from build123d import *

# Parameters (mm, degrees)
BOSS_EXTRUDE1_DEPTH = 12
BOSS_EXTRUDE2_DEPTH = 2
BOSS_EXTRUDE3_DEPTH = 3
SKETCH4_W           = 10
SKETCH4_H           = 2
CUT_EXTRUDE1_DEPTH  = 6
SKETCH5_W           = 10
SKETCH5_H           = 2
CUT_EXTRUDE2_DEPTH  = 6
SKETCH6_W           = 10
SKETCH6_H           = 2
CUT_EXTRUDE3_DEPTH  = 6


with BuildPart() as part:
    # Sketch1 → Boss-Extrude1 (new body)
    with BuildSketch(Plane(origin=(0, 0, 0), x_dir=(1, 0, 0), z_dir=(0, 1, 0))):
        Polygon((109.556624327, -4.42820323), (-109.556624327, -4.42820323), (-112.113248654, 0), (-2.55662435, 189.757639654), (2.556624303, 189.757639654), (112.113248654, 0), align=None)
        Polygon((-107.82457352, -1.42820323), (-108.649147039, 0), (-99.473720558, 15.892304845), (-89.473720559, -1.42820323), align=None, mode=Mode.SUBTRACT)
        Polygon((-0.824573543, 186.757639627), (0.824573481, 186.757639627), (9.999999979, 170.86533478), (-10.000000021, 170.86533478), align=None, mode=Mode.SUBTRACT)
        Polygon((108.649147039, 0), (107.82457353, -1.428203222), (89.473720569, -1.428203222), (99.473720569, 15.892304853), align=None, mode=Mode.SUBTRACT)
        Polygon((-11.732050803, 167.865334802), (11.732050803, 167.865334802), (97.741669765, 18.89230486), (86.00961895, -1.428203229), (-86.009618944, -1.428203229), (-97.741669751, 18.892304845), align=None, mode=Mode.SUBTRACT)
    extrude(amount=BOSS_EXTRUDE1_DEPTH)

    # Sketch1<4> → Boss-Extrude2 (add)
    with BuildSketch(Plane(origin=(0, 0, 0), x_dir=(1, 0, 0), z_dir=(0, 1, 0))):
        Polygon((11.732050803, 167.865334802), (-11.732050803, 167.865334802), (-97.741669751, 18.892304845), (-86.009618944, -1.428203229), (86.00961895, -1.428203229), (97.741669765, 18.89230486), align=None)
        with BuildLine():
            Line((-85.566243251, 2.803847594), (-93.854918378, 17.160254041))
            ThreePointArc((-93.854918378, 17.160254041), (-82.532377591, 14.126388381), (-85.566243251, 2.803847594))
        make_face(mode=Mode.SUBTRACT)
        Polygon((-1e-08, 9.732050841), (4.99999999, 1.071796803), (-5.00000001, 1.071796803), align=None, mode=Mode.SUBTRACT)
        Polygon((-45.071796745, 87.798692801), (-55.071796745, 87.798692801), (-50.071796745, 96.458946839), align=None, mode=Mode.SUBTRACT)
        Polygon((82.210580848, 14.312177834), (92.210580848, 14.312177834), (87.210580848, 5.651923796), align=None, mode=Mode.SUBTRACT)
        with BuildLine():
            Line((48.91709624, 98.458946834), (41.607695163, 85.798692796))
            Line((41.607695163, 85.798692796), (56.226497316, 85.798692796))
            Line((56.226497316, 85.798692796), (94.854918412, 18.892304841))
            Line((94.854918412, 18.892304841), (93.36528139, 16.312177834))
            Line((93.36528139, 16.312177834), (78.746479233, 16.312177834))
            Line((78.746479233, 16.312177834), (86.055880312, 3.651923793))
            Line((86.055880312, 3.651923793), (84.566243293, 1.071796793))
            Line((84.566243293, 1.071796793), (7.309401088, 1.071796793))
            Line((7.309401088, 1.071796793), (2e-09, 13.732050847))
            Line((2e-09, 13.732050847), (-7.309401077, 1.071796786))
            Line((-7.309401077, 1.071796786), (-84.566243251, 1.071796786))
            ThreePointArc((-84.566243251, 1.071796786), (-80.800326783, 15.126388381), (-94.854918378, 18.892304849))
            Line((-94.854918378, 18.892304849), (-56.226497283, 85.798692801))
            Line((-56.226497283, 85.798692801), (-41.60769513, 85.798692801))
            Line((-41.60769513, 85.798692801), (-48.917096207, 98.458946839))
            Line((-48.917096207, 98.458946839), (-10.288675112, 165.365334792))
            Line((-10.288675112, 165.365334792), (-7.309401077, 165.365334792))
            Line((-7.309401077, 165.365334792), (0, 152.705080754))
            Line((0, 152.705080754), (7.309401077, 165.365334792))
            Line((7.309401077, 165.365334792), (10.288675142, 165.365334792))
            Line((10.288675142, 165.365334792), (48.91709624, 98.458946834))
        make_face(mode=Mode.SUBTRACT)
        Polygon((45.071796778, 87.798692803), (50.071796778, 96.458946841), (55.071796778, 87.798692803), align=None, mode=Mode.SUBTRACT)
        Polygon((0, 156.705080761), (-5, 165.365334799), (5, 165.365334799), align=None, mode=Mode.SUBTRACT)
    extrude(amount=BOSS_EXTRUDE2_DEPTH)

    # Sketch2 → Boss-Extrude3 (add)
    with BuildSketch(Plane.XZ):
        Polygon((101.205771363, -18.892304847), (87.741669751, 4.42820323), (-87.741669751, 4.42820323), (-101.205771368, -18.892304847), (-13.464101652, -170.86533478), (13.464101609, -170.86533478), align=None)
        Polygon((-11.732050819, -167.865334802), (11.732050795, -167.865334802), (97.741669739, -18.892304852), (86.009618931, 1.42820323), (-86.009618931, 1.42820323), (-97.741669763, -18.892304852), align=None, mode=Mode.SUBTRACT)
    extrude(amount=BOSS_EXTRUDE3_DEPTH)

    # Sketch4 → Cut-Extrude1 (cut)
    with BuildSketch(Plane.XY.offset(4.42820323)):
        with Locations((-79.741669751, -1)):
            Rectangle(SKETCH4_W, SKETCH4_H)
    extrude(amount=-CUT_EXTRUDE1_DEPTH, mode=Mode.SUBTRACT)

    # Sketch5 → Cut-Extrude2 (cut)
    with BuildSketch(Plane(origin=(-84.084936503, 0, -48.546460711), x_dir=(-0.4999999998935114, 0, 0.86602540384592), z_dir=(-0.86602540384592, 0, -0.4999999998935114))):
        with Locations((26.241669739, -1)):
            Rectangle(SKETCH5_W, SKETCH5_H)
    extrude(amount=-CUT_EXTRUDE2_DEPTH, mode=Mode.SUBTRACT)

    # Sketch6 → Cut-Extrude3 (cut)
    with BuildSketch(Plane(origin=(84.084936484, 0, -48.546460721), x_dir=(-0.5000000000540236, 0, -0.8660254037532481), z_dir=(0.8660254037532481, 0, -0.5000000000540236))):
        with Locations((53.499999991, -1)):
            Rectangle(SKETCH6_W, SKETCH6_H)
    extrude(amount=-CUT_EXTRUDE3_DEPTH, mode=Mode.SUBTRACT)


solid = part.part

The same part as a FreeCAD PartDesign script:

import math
import FreeCAD as App
import Part
import Sketcher

V = App.Vector
Q = App.Units.Quantity

doc = App.newDocument("Part")
body = doc.addObject("PartDesign::Body", "Body")

# Sketch on XZ plane
sketch1 = doc.addObject("Sketcher::SketchObject", "Sketch")
body.addObject(sketch1)
sketch1.AttachmentSupport = (doc.XZ_Plane, [""])
sketch1.MapMode = "FlatFace"
sketch1.addGeometry([
    Part.LineSegment(V(-109.6, 4.4, 0), V(109.6, 4.4, 0)),  # 0
    Part.LineSegment(V(109.6, 4.4, 0), V(112.1, 0, 0)),  # 1
    Part.LineSegment(V(112.1, 0, 0), V(2.6, -189.8, 0)),  # 2
    Part.LineSegment(V(2.6, -189.8, 0), V(-2.6, -189.8, 0)),  # 3
    Part.LineSegment(V(-2.6, -189.8, 0), V(-112.1, 0, 0)),  # 4
    Part.LineSegment(V(-112.1, 0, 0), V(-109.6, 4.4, 0)),  # 5
    Part.LineSegment(V(108.6, 0, 0), V(107.8, 1.4, 0)),  # 6
    Part.LineSegment(V(107.8, 1.4, 0), V(89.5, 1.4, 0)),  # 7
    Part.LineSegment(V(89.5, 1.4, 0), V(99.5, -15.9, 0)),  # 8
    Part.LineSegment(V(99.5, -15.9, 0), V(108.6, 0, 0)),  # 9
    Part.LineSegment(V(-11.7, -167.9, 0), V(11.7, -167.9, 0)),  # 10
    Part.LineSegment(V(11.7, -167.9, 0), V(97.7, -18.9, 0)),  # 11
    Part.LineSegment(V(97.7, -18.9, 0), V(86, 1.4, 0)),  # 12
    Part.LineSegment(V(86, 1.4, 0), V(-86, 1.4, 0)),  # 13
    Part.LineSegment(V(-86, 1.4, 0), V(-97.7, -18.9, 0)),  # 14
    Part.LineSegment(V(-97.7, -18.9, 0), V(-11.7, -167.9, 0)),  # 15
    Part.LineSegment(V(-107.8, 1.4, 0), V(-108.6, 0, 0)),  # 16
    Part.LineSegment(V(-108.6, 0, 0), V(-99.5, -15.9, 0)),  # 17
    Part.LineSegment(V(-99.5, -15.9, 0), V(-89.5, 1.4, 0)),  # 18
    Part.LineSegment(V(-89.5, 1.4, 0), V(-107.8, 1.4, 0)),  # 19
    Part.LineSegment(V(-0.8, -186.8, 0), V(0.8, -186.8, 0)),  # 20
    Part.LineSegment(V(0.8, -186.8, 0), V(10, -170.9, 0)),  # 21
    Part.LineSegment(V(10, -170.9, 0), V(-10, -170.9, 0)),  # 22
    Part.LineSegment(V(-10, -170.9, 0), V(-0.8, -186.8, 0)),  # 23
], False)
sketch1.addConstraint([
    Sketcher.Constraint("Coincident", 0, 2, 1, 1),
    Sketcher.Constraint("Coincident", 1, 2, 2, 1),
    Sketcher.Constraint("Coincident", 2, 2, 3, 1),
    Sketcher.Constraint("Coincident", 3, 2, 4, 1),
    Sketcher.Constraint("Coincident", 4, 2, 5, 1),
    Sketcher.Constraint("Coincident", 5, 2, 0, 1),
    Sketcher.Constraint("Coincident", 6, 2, 7, 1),
    Sketcher.Constraint("Coincident", 7, 2, 8, 1),
    Sketcher.Constraint("Coincident", 8, 2, 9, 1),
    Sketcher.Constraint("Coincident", 9, 2, 6, 1),
    Sketcher.Constraint("Coincident", 10, 2, 11, 1),
    Sketcher.Constraint("Coincident", 11, 2, 12, 1),
    Sketcher.Constraint("Coincident", 12, 2, 13, 1),
    Sketcher.Constraint("Coincident", 13, 2, 14, 1),
    Sketcher.Constraint("Coincident", 14, 2, 15, 1),
    Sketcher.Constraint("Coincident", 15, 2, 10, 1),
    Sketcher.Constraint("Coincident", 16, 2, 17, 1),
    Sketcher.Constraint("Coincident", 17, 2, 18, 1),
    Sketcher.Constraint("Coincident", 18, 2, 19, 1),
    Sketcher.Constraint("Coincident", 19, 2, 16, 1),
    Sketcher.Constraint("Coincident", 20, 2, 21, 1),
    Sketcher.Constraint("Coincident", 21, 2, 22, 1),
    Sketcher.Constraint("Coincident", 22, 2, 23, 1),
    Sketcher.Constraint("Coincident", 23, 2, 20, 1),
    Sketcher.Constraint("Horizontal", 0),
    Sketcher.Constraint("Horizontal", 3),
    Sketcher.Constraint("Horizontal", 7),
    Sketcher.Constraint("Horizontal", 10),
    Sketcher.Constraint("Horizontal", 13),
    Sketcher.Constraint("Horizontal", 19),
    Sketcher.Constraint("Horizontal", 20),
    Sketcher.Constraint("Horizontal", 22),
    Sketcher.Constraint("Symmetric", 1, 2, 4, 2, -1, 1),
    Sketcher.Constraint("Symmetric", 9, 2, 16, 2, -1, 1),
    Sketcher.Constraint("Symmetric", 11, 2, 14, 2, -2),
    Sketcher.Constraint("Symmetric", 8, 2, 17, 2, -2),
    Sketcher.Constraint("Symmetric", 7, 2, 18, 2, -2),
    Sketcher.Constraint("PointOnObject", 1, 2, -1),
    Sketcher.Constraint("PointOnObject", 9, 2, -1),
    Sketcher.Constraint("Parallel", 1, 4),
    Sketcher.Constraint("Parallel", 2, 5),
    Sketcher.Constraint("Parallel", 4, 6),
    Sketcher.Constraint("Parallel", 6, 8),
    Sketcher.Constraint("Parallel", 5, 9),
    Sketcher.Constraint("Parallel", 9, 11),
    Sketcher.Constraint("Parallel", 8, 12),
    Sketcher.Constraint("Parallel", 11, 14),
    Sketcher.Constraint("Parallel", 12, 15),
    Sketcher.Constraint("Parallel", 14, 16),
    Sketcher.Constraint("Parallel", 15, 17),
    Sketcher.Constraint("Parallel", 18, 21),
    Sketcher.Constraint("Parallel", 17, 23),
    Sketcher.Constraint("Horizontal", 7, 2, 12, 2),
    Sketcher.Constraint("Equal", 17, 21),
    Sketcher.Constraint("DistanceX", 22, 2, 22, 1, Q("20 mm")),
    Sketcher.Constraint("Angle", 1, Q("-60 deg")),
    Sketcher.Constraint("Distance", 8, Q("20 mm")),
    Sketcher.Constraint("DistanceX", -1, 1, 21, 2, Q("10 mm")),
    Sketcher.Constraint("DistanceX", 2, 2, 0, 2, Q("107 mm")),
    Sketcher.Constraint("DistanceY", 6, 2, 0, 2, Q("3 mm")),
    Sketcher.Constraint("DistanceY", 11, 2, 8, 2, Q("3 mm")),
    Sketcher.Constraint("DistanceY", 2, 2, 20, 2, Q("3 mm")),
    Sketcher.Constraint("DistanceY", 21, 2, 10, 2, Q("3 mm")),
    Sketcher.Constraint("DistanceX", 10, 1, 10, 2, Q("23.464102 mm")),
    Sketcher.Constraint("DistanceX", 0, 1, 0, 2, Q("219.113249 mm")),
    Sketcher.Constraint("DistanceX", 9, 2, 1, 2, Q("3.464102 mm")),
    Sketcher.Constraint("DistanceX", 12, 2, 7, 2, Q("3.464102 mm")),
])
pad1 = doc.addObject("PartDesign::Pad", "Pad")
body.addObject(pad1)
pad1.Profile = sketch1
pad1.Length = 12
pad1.Reversed = True

# Sketch on XZ plane
sketch2 = doc.addObject("Sketcher::SketchObject", "Sketch001")
body.addObject(sketch2)
sketch2.AttachmentSupport = (doc.XZ_Plane, [""])
sketch2.MapMode = "FlatFace"
sketch2.addGeometry([
    Part.LineSegment(V(11.7, -167.9, 0), V(-11.7, -167.9, 0)),  # 0
    Part.LineSegment(V(-11.7, -167.9, 0), V(-97.7, -18.9, 0)),  # 1
    Part.LineSegment(V(-97.7, -18.9, 0), V(-86, 1.4, 0)),  # 2
    Part.LineSegment(V(-86, 1.4, 0), V(86, 1.4, 0)),  # 3
    Part.LineSegment(V(86, 1.4, 0), V(97.7, -18.9, 0)),  # 4
    Part.LineSegment(V(97.7, -18.9, 0), V(11.7, -167.9, 0)),  # 5
    Part.ArcOfCircle(Part.Circle(V(-89.7, -10, 0), V(0, 0, 1), 8.3), math.radians(-120), math.radians(60)),  # 6
    Part.LineSegment(V(-85.6, -2.8, 0), V(-93.9, -17.2, 0)),  # 7
    Part.LineSegment(V(-5, -1.1, 0), V(0, -9.7, 0)),  # 8
    Part.LineSegment(V(0, -9.7, 0), V(5, -1.1, 0)),  # 9
    Part.LineSegment(V(5, -1.1, 0), V(-5, -1.1, 0)),  # 10
    Part.LineSegment(V(87.2, -5.7, 0), V(82.2, -14.3, 0)),  # 11
    Part.LineSegment(V(82.2, -14.3, 0), V(92.2, -14.3, 0)),  # 12
    Part.LineSegment(V(92.2, -14.3, 0), V(87.2, -5.7, 0)),  # 13
    Part.LineSegment(V(10.3, -165.4, 0), V(48.9, -98.5, 0)),  # 14
    Part.LineSegment(V(48.9, -98.5, 0), V(41.6, -85.8, 0)),  # 15
    Part.LineSegment(V(41.6, -85.8, 0), V(56.2, -85.8, 0)),  # 16
    Part.LineSegment(V(56.2, -85.8, 0), V(94.9, -18.9, 0)),  # 17
    Part.LineSegment(V(94.9, -18.9, 0), V(93.4, -16.3, 0)),  # 18
    Part.LineSegment(V(93.4, -16.3, 0), V(78.7, -16.3, 0)),  # 19
    Part.LineSegment(V(78.7, -16.3, 0), V(86.1, -3.7, 0)),  # 20
    Part.LineSegment(V(86.1, -3.7, 0), V(84.6, -1.1, 0)),  # 21
    Part.LineSegment(V(84.6, -1.1, 0), V(7.3, -1.1, 0)),  # 22
    Part.LineSegment(V(7.3, -1.1, 0), V(0, -13.7, 0)),  # 23
    Part.LineSegment(V(0, -13.7, 0), V(-7.3, -1.1, 0)),  # 24
    Part.LineSegment(V(-7.3, -1.1, 0), V(-84.6, -1.1, 0)),  # 25
    Part.ArcOfCircle(Part.Circle(V(-89.7, -10, 0), V(0, 0, 1), 10.3), math.radians(-120), math.radians(60)),  # 26
    Part.LineSegment(V(-94.9, -18.9, 0), V(-56.2, -85.8, 0)),  # 27
    Part.LineSegment(V(-56.2, -85.8, 0), V(-41.6, -85.8, 0)),  # 28
    Part.LineSegment(V(-41.6, -85.8, 0), V(-48.9, -98.5, 0)),  # 29
    Part.LineSegment(V(-48.9, -98.5, 0), V(-10.3, -165.4, 0)),  # 30
    Part.LineSegment(V(-10.3, -165.4, 0), V(-7.3, -165.4, 0)),  # 31
    Part.LineSegment(V(-7.3, -165.4, 0), V(0, -152.7, 0)),  # 32
    Part.LineSegment(V(0, -152.7, 0), V(7.3, -165.4, 0)),  # 33
    Part.LineSegment(V(7.3, -165.4, 0), V(10.3, -165.4, 0)),  # 34
    Part.LineSegment(V(-50.1, -96.5, 0), V(-45.1, -87.8, 0)),  # 35
    Part.LineSegment(V(-45.1, -87.8, 0), V(-55.1, -87.8, 0)),  # 36
    Part.LineSegment(V(-55.1, -87.8, 0), V(-50.1, -96.5, 0)),  # 37
    Part.LineSegment(V(5, -165.4, 0), V(0, -156.7, 0)),  # 38
    Part.LineSegment(V(0, -156.7, 0), V(-5, -165.4, 0)),  # 39
    Part.LineSegment(V(-5, -165.4, 0), V(5, -165.4, 0)),  # 40
    Part.LineSegment(V(55.1, -87.8, 0), V(45.1, -87.8, 0)),  # 41
    Part.LineSegment(V(45.1, -87.8, 0), V(50.1, -96.5, 0)),  # 42
    Part.LineSegment(V(50.1, -96.5, 0), V(55.1, -87.8, 0)),  # 43
], False)
sketch2.addConstraint([
    Sketcher.Constraint("Coincident", 0, 2, 1, 1),
    Sketcher.Constraint("Coincident", 1, 2, 2, 1),
    Sketcher.Constraint("Coincident", 2, 2, 3, 1),
    Sketcher.Constraint("Coincident", 3, 2, 4, 1),
    Sketcher.Constraint("Coincident", 4, 2, 5, 1),
    Sketcher.Constraint("Coincident", 5, 2, 0, 1),
    Sketcher.Constraint("Coincident", 6, 1, 7, 2),
    Sketcher.Constraint("Coincident", 7, 1, 6, 2),
    Sketcher.Constraint("Coincident", 8, 2, 9, 1),
    Sketcher.Constraint("Coincident", 9, 2, 10, 1),
    Sketcher.Constraint("Coincident", 10, 2, 8, 1),
    Sketcher.Constraint("Coincident", 11, 2, 12, 1),
    Sketcher.Constraint("Coincident", 12, 2, 13, 1),
    Sketcher.Constraint("Coincident", 13, 2, 11, 1),
    Sketcher.Constraint("Coincident", 14, 2, 15, 1),
    Sketcher.Constraint("Coincident", 15, 2, 16, 1),
    Sketcher.Constraint("Coincident", 16, 2, 17, 1),
    Sketcher.Constraint("Coincident", 17, 2, 18, 1),
    Sketcher.Constraint("Coincident", 18, 2, 19, 1),
    Sketcher.Constraint("Coincident", 19, 2, 20, 1),
    Sketcher.Constraint("Coincident", 20, 2, 21, 1),
    Sketcher.Constraint("Coincident", 21, 2, 22, 1),
    Sketcher.Constraint("Coincident", 22, 2, 23, 1),
    Sketcher.Constraint("Coincident", 23, 2, 24, 1),
    Sketcher.Constraint("Coincident", 24, 2, 25, 1),
    Sketcher.Constraint("Coincident", 25, 2, 26, 2),
    Sketcher.Constraint("Coincident", 26, 1, 27, 1),
    Sketcher.Constraint("Coincident", 27, 2, 28, 1),
    Sketcher.Constraint("Coincident", 28, 2, 29, 1),
    Sketcher.Constraint("Coincident", 29, 2, 30, 1),
    Sketcher.Constraint("Coincident", 30, 2, 31, 1),
    Sketcher.Constraint("Coincident", 31, 2, 32, 1),
    Sketcher.Constraint("Coincident", 32, 2, 33, 1),
    Sketcher.Constraint("Coincident", 33, 2, 34, 1),
    Sketcher.Constraint("Coincident", 34, 2, 14, 1),
    Sketcher.Constraint("Coincident", 35, 2, 36, 1),
    Sketcher.Constraint("Coincident", 36, 2, 37, 1),
    Sketcher.Constraint("Coincident", 37, 2, 35, 1),
    Sketcher.Constraint("Coincident", 38, 2, 39, 1),
    Sketcher.Constraint("Coincident", 39, 2, 40, 1),
    Sketcher.Constraint("Coincident", 40, 2, 38, 1),
    Sketcher.Constraint("Coincident", 41, 2, 42, 1),
    Sketcher.Constraint("Coincident", 42, 2, 43, 1),
    Sketcher.Constraint("Coincident", 43, 2, 41, 1),
    Sketcher.Constraint("Horizontal", 0),
    Sketcher.Constraint("Horizontal", 3),
    Sketcher.Constraint("Horizontal", 10),
    Sketcher.Constraint("Horizontal", 12),
    Sketcher.Constraint("Horizontal", 16),
    Sketcher.Constraint("Horizontal", 19),
    Sketcher.Constraint("Horizontal", 22),
    Sketcher.Constraint("Horizontal", 25),
    Sketcher.Constraint("Horizontal", 28),
    Sketcher.Constraint("Horizontal", 31),
    Sketcher.Constraint("Horizontal", 34),
    Sketcher.Constraint("Horizontal", 36),
    Sketcher.Constraint("Horizontal", 40),
    Sketcher.Constraint("Horizontal", 41),
    Sketcher.Constraint("Coincident", 26, 3, 6, 3),
    Sketcher.Constraint("Symmetric", 1, 2, 4, 2, -2),
    Sketcher.Constraint("Symmetric", 22, 2, 24, 2, -2),
    Sketcher.Constraint("Symmetric", 17, 2, 26, 1, -2),
    Sketcher.Constraint("Symmetric", 16, 2, 27, 2, -2),
    Sketcher.Constraint("Symmetric", 14, 2, 29, 2, -2),
    Sketcher.Constraint("Symmetric", 31, 2, 33, 2, -2),
    Sketcher.Constraint("Symmetric", 35, 2, 41, 2, -2),
    Sketcher.Constraint("Symmetric", 37, 2, 42, 2, -2),
    Sketcher.Constraint("PointOnObject", 8, 2, -2),
    Sketcher.Constraint("PointOnObject", 23, 2, -2),
    Sketcher.Constraint("PointOnObject", 32, 2, -2),
    Sketcher.Constraint("PointOnObject", 38, 2, -2),
    Sketcher.Constraint("Parallel", 1, 4),
    Sketcher.Constraint("Parallel", 2, 5),
    Sketcher.Constraint("Parallel", 5, 7),
    Sketcher.Constraint("Parallel", 4, 8),
    Sketcher.Constraint("Parallel", 7, 9),
    Sketcher.Constraint("Parallel", 9, 11),
    Sketcher.Constraint("Parallel", 8, 13),
    Sketcher.Constraint("Parallel", 11, 14),
    Sketcher.Constraint("Parallel", 13, 15),
    Sketcher.Constraint("Parallel", 14, 17),
    Sketcher.Constraint("Parallel", 15, 18),
    Sketcher.Constraint("Parallel", 17, 20),
    Sketcher.Constraint("Parallel", 18, 21),
    Sketcher.Constraint("Parallel", 20, 23),
    Sketcher.Constraint("Parallel", 21, 24),
    Sketcher.Constraint("Parallel", 23, 29),
    Sketcher.Constraint("Parallel", 27, 30),
    Sketcher.Constraint("Parallel", 29, 32),
    Sketcher.Constraint("Parallel", 32, 35),
    Sketcher.Constraint("Parallel", 33, 37),
    Sketcher.Constraint("Parallel", 37, 38),
    Sketcher.Constraint("Parallel", 35, 39),
    Sketcher.Constraint("Parallel", 39, 43),
    Sketcher.Constraint("Horizontal", 4, 2, 17, 2),
    Sketcher.Constraint("Horizontal", 10, 2, 21, 2),
    Sketcher.Constraint("Horizontal", 34, 2, 39, 2),
    Sketcher.Constraint("Vertical", 24, 2, 31, 2),
    Sketcher.Constraint("Vertical", 10, 2, 39, 2),
    Sketcher.Constraint("Equal", 10, 12),
    Sketcher.Constraint("Equal", 16, 19),
    Sketcher.Constraint("Equal", 22, 25),
    Sketcher.Constraint("Equal", 12, 36),
    Sketcher.Constraint("Equal", 14, 17),
    Sketcher.Constraint("Equal", 15, 20),
    Sketcher.Constraint("Equal", 18, 21),
    Sketcher.Constraint("Equal", 20, 23),
    Sketcher.Constraint("DistanceX", 10, 2, 10, 1, Q("10 mm")),
    Sketcher.Constraint("Angle", 1, Q("120 deg")),
    Sketcher.Constraint("DistanceY", 18, 2, 12, 2, Q("2 mm")),
    Sketcher.Constraint("DistanceY", 13, 2, 20, 2, Q("2 mm")),
    Sketcher.Constraint("DistanceX", 7, 1, 25, 2, Q("1 mm")),
    Sketcher.Constraint("DistanceX", 26, 1, 6, 1, Q("1 mm")),
    Sketcher.Constraint("DistanceY", 35, 2, 28, 2, Q("2 mm")),
    Sketcher.Constraint("DistanceY", 9, 2, 3, 2, Q("2.5 mm")),
    Sketcher.Constraint("DistanceY", 0, 2, 30, 2, Q("2.5 mm")),
    Sketcher.Constraint("DistanceY", 6, 3, 8, 2, Q("0.25 mm")),
    Sketcher.Constraint("DistanceX", 0, 2, 0, 1, Q("23.464102 mm")),
    Sketcher.Constraint("Radius", 6, Q("8.288675 mm")),
    Sketcher.Constraint("Radius", 26, Q("10.288675 mm")),
    Sketcher.Constraint("DistanceX", 6, 3, 3, 2, Q("175.7202 mm")),
    Sketcher.Constraint("DistanceX", 6, 1, 2, 2, Q("7.845299 mm")),
    Sketcher.Constraint("DistanceX", 12, 2, 18, 2, Q("1.154701 mm")),
    Sketcher.Constraint("DistanceX", 35, 2, 28, 2, Q("3.464102 mm")),
    Sketcher.Constraint("DistanceY", 6, 3, -1, 1, Q("9.982051 mm")),
])
pad2 = doc.addObject("PartDesign::Pad", "Pad001")
body.addObject(pad2)
pad2.Profile = sketch2
pad2.Length = 2
pad2.Reversed = True

# Sketch on XZ plane
sketch3 = doc.addObject("Sketcher::SketchObject", "Sketch002")
body.addObject(sketch3)
sketch3.AttachmentSupport = (doc.XZ_Plane, [""])
sketch3.MapMode = "FlatFace"
sketch3.addGeometry([
    Part.LineSegment(V(101, -19, 0), V(88, 4, 0)),  # 0
    Part.LineSegment(V(88, 4, 0), V(-88, 4, 0)),  # 1
    Part.LineSegment(V(-88, 4, 0), V(-101, -19, 0)),  # 2
    Part.LineSegment(V(-101, -19, 0), V(-13, -171, 0)),  # 3
    Part.LineSegment(V(-13, -171, 0), V(13, -171, 0)),  # 4
    Part.LineSegment(V(13, -171, 0), V(101, -19, 0)),  # 5
    Part.LineSegment(V(12, -168, 0), V(-12, -168, 0)),  # 6
    Part.LineSegment(V(-12, -168, 0), V(-98, -19, 0)),  # 7
    Part.LineSegment(V(-98, -19, 0), V(-86, 1, 0)),  # 8
    Part.LineSegment(V(-86, 1, 0), V(86, 1, 0)),  # 9
    Part.LineSegment(V(86, 1, 0), V(98, -19, 0)),  # 10
    Part.LineSegment(V(98, -19, 0), V(12, -168, 0)),  # 11
], False)
sketch3.addConstraint([
    Sketcher.Constraint("Coincident", 0, 2, 1, 1),
    Sketcher.Constraint("Coincident", 1, 2, 2, 1),
    Sketcher.Constraint("Coincident", 2, 2, 3, 1),
    Sketcher.Constraint("Coincident", 3, 2, 4, 1),
    Sketcher.Constraint("Coincident", 4, 2, 5, 1),
    Sketcher.Constraint("Coincident", 5, 2, 0, 1),
    Sketcher.Constraint("Coincident", 6, 2, 7, 1),
    Sketcher.Constraint("Coincident", 7, 2, 8, 1),
    Sketcher.Constraint("Coincident", 8, 2, 9, 1),
    Sketcher.Constraint("Coincident", 9, 2, 10, 1),
    Sketcher.Constraint("Coincident", 10, 2, 11, 1),
    Sketcher.Constraint("Coincident", 11, 2, 6, 1),
    Sketcher.Constraint("Horizontal", 1),
    Sketcher.Constraint("Horizontal", 4),
    Sketcher.Constraint("Horizontal", 6),
    Sketcher.Constraint("Horizontal", 9),
    Sketcher.Constraint("Symmetric", 2, 2, 5, 2, -2),
    Sketcher.Constraint("Symmetric", 7, 2, 10, 2, -2),
    Sketcher.Constraint("Parallel", 0, 3),
    Sketcher.Constraint("Parallel", 2, 5),
    Sketcher.Constraint("Parallel", 3, 7),
    Sketcher.Constraint("Parallel", 5, 8),
    Sketcher.Constraint("Parallel", 7, 10),
    Sketcher.Constraint("Parallel", 8, 11),
    Sketcher.Constraint("Horizontal", 5, 2, 7, 2),
    Sketcher.Constraint("Equal", 0, 2),
    Sketcher.Constraint("Angle", 0, Q("120 deg")),
    Sketcher.Constraint("DistanceY", 3, 2, 6, 2, Q("3 mm")),
    Sketcher.Constraint("DistanceX", 7, 2, 1, 2, Q("10 mm")),
    Sketcher.Constraint("DistanceY", 8, 2, 1, 2, Q("3 mm")),
    Sketcher.Constraint("DistanceX", 6, 2, 6, 1, Q("23.464102 mm")),
    Sketcher.Constraint("Distance", 8, Q("23.464102 mm")),
    Sketcher.Constraint("DistanceX", 1, 2, 1, 1, Q("175.48334 mm")),
    Sketcher.Constraint("DistanceY", -1, 1, 0, 2, Q("4.428203 mm")),
])
pad3 = doc.addObject("PartDesign::Pad", "Pad002")
body.addObject(pad3)
pad3.Profile = sketch3
pad3.Length = 3

# Sketch on XY plane
sketch4 = doc.addObject("Sketcher::SketchObject", "Sketch003")
body.addObject(sketch4)
sketch4.AttachmentSupport = (doc.XY_Plane, [""])
sketch4.MapMode = "FlatFace"
sketch4.AttachmentOffset = App.Placement(V(0, 0, 4.428203), App.Rotation())
sketch4.addGeometry([
    Part.LineSegment(V(-84.7, 0, 0), V(-84.7, -2, 0)),
    Part.LineSegment(V(-84.7, -2, 0), V(-74.7, -2, 0)),
    Part.LineSegment(V(-74.7, -2, 0), V(-74.7, 0, 0)),
    Part.LineSegment(V(-74.7, 0, 0), V(-84.7, 0, 0)),
], False)
sketch4.addConstraint([
    Sketcher.Constraint("Coincident", 0, 2, 1, 1),
    Sketcher.Constraint("Coincident", 1, 2, 2, 1),
    Sketcher.Constraint("Coincident", 2, 2, 3, 1),
    Sketcher.Constraint("Coincident", 3, 2, 0, 1),
    Sketcher.Constraint("Vertical", 0),
    Sketcher.Constraint("Horizontal", 1),
    Sketcher.Constraint("Vertical", 2),
    Sketcher.Constraint("Horizontal", 3),
    Sketcher.Constraint("PointOnObject", 2, 2, -1),
    Sketcher.Constraint("DistanceX", 1, 1, 1, 2, Q("10 mm")),
    Sketcher.Constraint("DistanceY", 0, 2, 0, 1, Q("2 mm")),
    Sketcher.Constraint("DistanceX", 0, 2, -1, 1, Q("84.74167 mm")),
])
pocket1 = doc.addObject("PartDesign::Pocket", "Pocket")
body.addObject(pocket1)
pocket1.Profile = sketch4
pocket1.Length = 6

# Sketch on an angled plane
sketch5 = doc.addObject("Sketcher::SketchObject", "Sketch004")
body.addObject(sketch5)
sketch5.Placement = App.Placement(V(-84.084937, 0, -48.546461), App.Rotation(V(-0.5, 0, 0.866025404), V(0, 1, 0), V(-0.866025404, 0, -0.5), "ZXY"))
sketch5.addGeometry([
    Part.LineSegment(V(21.2, 0, 0), V(21.2, -2, 0)),
    Part.LineSegment(V(21.2, -2, 0), V(31.2, -2, 0)),
    Part.LineSegment(V(31.2, -2, 0), V(31.2, 0, 0)),
    Part.LineSegment(V(31.2, 0, 0), V(21.2, 0, 0)),
], False)
sketch5.addConstraint([
    Sketcher.Constraint("Coincident", 0, 2, 1, 1),
    Sketcher.Constraint("Coincident", 1, 2, 2, 1),
    Sketcher.Constraint("Coincident", 2, 2, 3, 1),
    Sketcher.Constraint("Coincident", 3, 2, 0, 1),
    Sketcher.Constraint("Vertical", 0),
    Sketcher.Constraint("Horizontal", 1),
    Sketcher.Constraint("Vertical", 2),
    Sketcher.Constraint("Horizontal", 3),
    Sketcher.Constraint("PointOnObject", 2, 2, -1),
    Sketcher.Constraint("DistanceX", 1, 1, 1, 2, Q("10 mm")),
    Sketcher.Constraint("DistanceY", 0, 2, 0, 1, Q("2 mm")),
    Sketcher.Constraint("DistanceX", -1, 1, 0, 2, Q("21.24167 mm")),
])
pocket2 = doc.addObject("PartDesign::Pocket", "Pocket001")
body.addObject(pocket2)
pocket2.Profile = sketch5
pocket2.Length = 6

# Sketch on an angled plane
sketch6 = doc.addObject("Sketcher::SketchObject", "Sketch005")
body.addObject(sketch6)
sketch6.Placement = App.Placement(V(84.084936, 0, -48.546461), App.Rotation(V(-0.5, 0, -0.866025404), V(0, 1, 0), V(0.866025404, 0, -0.5), "ZXY"))
sketch6.addGeometry([
    Part.LineSegment(V(48.5, 0, 0), V(48.5, -2, 0)),
    Part.LineSegment(V(48.5, -2, 0), V(58.5, -2, 0)),
    Part.LineSegment(V(58.5, -2, 0), V(58.5, 0, 0)),
    Part.LineSegment(V(58.5, 0, 0), V(48.5, 0, 0)),
], False)
sketch6.addConstraint([
    Sketcher.Constraint("Coincident", 0, 2, 1, 1),
    Sketcher.Constraint("Coincident", 1, 2, 2, 1),
    Sketcher.Constraint("Coincident", 2, 2, 3, 1),
    Sketcher.Constraint("Coincident", 3, 2, 0, 1),
    Sketcher.Constraint("Vertical", 0),
    Sketcher.Constraint("Horizontal", 1),
    Sketcher.Constraint("Vertical", 2),
    Sketcher.Constraint("Horizontal", 3),
    Sketcher.Constraint("PointOnObject", 2, 2, -1),
    Sketcher.Constraint("DistanceX", 1, 1, 1, 2, Q("10 mm")),
    Sketcher.Constraint("DistanceY", 0, 2, 0, 1, Q("2 mm")),
    Sketcher.Constraint("DistanceX", -1, 1, 0, 2, Q("48.5 mm")),
])
pocket3 = doc.addObject("PartDesign::Pocket", "Pocket002")
body.addObject(pocket3)
pocket3.Profile = sketch6
pocket3.Length = 6

doc.recompute()
